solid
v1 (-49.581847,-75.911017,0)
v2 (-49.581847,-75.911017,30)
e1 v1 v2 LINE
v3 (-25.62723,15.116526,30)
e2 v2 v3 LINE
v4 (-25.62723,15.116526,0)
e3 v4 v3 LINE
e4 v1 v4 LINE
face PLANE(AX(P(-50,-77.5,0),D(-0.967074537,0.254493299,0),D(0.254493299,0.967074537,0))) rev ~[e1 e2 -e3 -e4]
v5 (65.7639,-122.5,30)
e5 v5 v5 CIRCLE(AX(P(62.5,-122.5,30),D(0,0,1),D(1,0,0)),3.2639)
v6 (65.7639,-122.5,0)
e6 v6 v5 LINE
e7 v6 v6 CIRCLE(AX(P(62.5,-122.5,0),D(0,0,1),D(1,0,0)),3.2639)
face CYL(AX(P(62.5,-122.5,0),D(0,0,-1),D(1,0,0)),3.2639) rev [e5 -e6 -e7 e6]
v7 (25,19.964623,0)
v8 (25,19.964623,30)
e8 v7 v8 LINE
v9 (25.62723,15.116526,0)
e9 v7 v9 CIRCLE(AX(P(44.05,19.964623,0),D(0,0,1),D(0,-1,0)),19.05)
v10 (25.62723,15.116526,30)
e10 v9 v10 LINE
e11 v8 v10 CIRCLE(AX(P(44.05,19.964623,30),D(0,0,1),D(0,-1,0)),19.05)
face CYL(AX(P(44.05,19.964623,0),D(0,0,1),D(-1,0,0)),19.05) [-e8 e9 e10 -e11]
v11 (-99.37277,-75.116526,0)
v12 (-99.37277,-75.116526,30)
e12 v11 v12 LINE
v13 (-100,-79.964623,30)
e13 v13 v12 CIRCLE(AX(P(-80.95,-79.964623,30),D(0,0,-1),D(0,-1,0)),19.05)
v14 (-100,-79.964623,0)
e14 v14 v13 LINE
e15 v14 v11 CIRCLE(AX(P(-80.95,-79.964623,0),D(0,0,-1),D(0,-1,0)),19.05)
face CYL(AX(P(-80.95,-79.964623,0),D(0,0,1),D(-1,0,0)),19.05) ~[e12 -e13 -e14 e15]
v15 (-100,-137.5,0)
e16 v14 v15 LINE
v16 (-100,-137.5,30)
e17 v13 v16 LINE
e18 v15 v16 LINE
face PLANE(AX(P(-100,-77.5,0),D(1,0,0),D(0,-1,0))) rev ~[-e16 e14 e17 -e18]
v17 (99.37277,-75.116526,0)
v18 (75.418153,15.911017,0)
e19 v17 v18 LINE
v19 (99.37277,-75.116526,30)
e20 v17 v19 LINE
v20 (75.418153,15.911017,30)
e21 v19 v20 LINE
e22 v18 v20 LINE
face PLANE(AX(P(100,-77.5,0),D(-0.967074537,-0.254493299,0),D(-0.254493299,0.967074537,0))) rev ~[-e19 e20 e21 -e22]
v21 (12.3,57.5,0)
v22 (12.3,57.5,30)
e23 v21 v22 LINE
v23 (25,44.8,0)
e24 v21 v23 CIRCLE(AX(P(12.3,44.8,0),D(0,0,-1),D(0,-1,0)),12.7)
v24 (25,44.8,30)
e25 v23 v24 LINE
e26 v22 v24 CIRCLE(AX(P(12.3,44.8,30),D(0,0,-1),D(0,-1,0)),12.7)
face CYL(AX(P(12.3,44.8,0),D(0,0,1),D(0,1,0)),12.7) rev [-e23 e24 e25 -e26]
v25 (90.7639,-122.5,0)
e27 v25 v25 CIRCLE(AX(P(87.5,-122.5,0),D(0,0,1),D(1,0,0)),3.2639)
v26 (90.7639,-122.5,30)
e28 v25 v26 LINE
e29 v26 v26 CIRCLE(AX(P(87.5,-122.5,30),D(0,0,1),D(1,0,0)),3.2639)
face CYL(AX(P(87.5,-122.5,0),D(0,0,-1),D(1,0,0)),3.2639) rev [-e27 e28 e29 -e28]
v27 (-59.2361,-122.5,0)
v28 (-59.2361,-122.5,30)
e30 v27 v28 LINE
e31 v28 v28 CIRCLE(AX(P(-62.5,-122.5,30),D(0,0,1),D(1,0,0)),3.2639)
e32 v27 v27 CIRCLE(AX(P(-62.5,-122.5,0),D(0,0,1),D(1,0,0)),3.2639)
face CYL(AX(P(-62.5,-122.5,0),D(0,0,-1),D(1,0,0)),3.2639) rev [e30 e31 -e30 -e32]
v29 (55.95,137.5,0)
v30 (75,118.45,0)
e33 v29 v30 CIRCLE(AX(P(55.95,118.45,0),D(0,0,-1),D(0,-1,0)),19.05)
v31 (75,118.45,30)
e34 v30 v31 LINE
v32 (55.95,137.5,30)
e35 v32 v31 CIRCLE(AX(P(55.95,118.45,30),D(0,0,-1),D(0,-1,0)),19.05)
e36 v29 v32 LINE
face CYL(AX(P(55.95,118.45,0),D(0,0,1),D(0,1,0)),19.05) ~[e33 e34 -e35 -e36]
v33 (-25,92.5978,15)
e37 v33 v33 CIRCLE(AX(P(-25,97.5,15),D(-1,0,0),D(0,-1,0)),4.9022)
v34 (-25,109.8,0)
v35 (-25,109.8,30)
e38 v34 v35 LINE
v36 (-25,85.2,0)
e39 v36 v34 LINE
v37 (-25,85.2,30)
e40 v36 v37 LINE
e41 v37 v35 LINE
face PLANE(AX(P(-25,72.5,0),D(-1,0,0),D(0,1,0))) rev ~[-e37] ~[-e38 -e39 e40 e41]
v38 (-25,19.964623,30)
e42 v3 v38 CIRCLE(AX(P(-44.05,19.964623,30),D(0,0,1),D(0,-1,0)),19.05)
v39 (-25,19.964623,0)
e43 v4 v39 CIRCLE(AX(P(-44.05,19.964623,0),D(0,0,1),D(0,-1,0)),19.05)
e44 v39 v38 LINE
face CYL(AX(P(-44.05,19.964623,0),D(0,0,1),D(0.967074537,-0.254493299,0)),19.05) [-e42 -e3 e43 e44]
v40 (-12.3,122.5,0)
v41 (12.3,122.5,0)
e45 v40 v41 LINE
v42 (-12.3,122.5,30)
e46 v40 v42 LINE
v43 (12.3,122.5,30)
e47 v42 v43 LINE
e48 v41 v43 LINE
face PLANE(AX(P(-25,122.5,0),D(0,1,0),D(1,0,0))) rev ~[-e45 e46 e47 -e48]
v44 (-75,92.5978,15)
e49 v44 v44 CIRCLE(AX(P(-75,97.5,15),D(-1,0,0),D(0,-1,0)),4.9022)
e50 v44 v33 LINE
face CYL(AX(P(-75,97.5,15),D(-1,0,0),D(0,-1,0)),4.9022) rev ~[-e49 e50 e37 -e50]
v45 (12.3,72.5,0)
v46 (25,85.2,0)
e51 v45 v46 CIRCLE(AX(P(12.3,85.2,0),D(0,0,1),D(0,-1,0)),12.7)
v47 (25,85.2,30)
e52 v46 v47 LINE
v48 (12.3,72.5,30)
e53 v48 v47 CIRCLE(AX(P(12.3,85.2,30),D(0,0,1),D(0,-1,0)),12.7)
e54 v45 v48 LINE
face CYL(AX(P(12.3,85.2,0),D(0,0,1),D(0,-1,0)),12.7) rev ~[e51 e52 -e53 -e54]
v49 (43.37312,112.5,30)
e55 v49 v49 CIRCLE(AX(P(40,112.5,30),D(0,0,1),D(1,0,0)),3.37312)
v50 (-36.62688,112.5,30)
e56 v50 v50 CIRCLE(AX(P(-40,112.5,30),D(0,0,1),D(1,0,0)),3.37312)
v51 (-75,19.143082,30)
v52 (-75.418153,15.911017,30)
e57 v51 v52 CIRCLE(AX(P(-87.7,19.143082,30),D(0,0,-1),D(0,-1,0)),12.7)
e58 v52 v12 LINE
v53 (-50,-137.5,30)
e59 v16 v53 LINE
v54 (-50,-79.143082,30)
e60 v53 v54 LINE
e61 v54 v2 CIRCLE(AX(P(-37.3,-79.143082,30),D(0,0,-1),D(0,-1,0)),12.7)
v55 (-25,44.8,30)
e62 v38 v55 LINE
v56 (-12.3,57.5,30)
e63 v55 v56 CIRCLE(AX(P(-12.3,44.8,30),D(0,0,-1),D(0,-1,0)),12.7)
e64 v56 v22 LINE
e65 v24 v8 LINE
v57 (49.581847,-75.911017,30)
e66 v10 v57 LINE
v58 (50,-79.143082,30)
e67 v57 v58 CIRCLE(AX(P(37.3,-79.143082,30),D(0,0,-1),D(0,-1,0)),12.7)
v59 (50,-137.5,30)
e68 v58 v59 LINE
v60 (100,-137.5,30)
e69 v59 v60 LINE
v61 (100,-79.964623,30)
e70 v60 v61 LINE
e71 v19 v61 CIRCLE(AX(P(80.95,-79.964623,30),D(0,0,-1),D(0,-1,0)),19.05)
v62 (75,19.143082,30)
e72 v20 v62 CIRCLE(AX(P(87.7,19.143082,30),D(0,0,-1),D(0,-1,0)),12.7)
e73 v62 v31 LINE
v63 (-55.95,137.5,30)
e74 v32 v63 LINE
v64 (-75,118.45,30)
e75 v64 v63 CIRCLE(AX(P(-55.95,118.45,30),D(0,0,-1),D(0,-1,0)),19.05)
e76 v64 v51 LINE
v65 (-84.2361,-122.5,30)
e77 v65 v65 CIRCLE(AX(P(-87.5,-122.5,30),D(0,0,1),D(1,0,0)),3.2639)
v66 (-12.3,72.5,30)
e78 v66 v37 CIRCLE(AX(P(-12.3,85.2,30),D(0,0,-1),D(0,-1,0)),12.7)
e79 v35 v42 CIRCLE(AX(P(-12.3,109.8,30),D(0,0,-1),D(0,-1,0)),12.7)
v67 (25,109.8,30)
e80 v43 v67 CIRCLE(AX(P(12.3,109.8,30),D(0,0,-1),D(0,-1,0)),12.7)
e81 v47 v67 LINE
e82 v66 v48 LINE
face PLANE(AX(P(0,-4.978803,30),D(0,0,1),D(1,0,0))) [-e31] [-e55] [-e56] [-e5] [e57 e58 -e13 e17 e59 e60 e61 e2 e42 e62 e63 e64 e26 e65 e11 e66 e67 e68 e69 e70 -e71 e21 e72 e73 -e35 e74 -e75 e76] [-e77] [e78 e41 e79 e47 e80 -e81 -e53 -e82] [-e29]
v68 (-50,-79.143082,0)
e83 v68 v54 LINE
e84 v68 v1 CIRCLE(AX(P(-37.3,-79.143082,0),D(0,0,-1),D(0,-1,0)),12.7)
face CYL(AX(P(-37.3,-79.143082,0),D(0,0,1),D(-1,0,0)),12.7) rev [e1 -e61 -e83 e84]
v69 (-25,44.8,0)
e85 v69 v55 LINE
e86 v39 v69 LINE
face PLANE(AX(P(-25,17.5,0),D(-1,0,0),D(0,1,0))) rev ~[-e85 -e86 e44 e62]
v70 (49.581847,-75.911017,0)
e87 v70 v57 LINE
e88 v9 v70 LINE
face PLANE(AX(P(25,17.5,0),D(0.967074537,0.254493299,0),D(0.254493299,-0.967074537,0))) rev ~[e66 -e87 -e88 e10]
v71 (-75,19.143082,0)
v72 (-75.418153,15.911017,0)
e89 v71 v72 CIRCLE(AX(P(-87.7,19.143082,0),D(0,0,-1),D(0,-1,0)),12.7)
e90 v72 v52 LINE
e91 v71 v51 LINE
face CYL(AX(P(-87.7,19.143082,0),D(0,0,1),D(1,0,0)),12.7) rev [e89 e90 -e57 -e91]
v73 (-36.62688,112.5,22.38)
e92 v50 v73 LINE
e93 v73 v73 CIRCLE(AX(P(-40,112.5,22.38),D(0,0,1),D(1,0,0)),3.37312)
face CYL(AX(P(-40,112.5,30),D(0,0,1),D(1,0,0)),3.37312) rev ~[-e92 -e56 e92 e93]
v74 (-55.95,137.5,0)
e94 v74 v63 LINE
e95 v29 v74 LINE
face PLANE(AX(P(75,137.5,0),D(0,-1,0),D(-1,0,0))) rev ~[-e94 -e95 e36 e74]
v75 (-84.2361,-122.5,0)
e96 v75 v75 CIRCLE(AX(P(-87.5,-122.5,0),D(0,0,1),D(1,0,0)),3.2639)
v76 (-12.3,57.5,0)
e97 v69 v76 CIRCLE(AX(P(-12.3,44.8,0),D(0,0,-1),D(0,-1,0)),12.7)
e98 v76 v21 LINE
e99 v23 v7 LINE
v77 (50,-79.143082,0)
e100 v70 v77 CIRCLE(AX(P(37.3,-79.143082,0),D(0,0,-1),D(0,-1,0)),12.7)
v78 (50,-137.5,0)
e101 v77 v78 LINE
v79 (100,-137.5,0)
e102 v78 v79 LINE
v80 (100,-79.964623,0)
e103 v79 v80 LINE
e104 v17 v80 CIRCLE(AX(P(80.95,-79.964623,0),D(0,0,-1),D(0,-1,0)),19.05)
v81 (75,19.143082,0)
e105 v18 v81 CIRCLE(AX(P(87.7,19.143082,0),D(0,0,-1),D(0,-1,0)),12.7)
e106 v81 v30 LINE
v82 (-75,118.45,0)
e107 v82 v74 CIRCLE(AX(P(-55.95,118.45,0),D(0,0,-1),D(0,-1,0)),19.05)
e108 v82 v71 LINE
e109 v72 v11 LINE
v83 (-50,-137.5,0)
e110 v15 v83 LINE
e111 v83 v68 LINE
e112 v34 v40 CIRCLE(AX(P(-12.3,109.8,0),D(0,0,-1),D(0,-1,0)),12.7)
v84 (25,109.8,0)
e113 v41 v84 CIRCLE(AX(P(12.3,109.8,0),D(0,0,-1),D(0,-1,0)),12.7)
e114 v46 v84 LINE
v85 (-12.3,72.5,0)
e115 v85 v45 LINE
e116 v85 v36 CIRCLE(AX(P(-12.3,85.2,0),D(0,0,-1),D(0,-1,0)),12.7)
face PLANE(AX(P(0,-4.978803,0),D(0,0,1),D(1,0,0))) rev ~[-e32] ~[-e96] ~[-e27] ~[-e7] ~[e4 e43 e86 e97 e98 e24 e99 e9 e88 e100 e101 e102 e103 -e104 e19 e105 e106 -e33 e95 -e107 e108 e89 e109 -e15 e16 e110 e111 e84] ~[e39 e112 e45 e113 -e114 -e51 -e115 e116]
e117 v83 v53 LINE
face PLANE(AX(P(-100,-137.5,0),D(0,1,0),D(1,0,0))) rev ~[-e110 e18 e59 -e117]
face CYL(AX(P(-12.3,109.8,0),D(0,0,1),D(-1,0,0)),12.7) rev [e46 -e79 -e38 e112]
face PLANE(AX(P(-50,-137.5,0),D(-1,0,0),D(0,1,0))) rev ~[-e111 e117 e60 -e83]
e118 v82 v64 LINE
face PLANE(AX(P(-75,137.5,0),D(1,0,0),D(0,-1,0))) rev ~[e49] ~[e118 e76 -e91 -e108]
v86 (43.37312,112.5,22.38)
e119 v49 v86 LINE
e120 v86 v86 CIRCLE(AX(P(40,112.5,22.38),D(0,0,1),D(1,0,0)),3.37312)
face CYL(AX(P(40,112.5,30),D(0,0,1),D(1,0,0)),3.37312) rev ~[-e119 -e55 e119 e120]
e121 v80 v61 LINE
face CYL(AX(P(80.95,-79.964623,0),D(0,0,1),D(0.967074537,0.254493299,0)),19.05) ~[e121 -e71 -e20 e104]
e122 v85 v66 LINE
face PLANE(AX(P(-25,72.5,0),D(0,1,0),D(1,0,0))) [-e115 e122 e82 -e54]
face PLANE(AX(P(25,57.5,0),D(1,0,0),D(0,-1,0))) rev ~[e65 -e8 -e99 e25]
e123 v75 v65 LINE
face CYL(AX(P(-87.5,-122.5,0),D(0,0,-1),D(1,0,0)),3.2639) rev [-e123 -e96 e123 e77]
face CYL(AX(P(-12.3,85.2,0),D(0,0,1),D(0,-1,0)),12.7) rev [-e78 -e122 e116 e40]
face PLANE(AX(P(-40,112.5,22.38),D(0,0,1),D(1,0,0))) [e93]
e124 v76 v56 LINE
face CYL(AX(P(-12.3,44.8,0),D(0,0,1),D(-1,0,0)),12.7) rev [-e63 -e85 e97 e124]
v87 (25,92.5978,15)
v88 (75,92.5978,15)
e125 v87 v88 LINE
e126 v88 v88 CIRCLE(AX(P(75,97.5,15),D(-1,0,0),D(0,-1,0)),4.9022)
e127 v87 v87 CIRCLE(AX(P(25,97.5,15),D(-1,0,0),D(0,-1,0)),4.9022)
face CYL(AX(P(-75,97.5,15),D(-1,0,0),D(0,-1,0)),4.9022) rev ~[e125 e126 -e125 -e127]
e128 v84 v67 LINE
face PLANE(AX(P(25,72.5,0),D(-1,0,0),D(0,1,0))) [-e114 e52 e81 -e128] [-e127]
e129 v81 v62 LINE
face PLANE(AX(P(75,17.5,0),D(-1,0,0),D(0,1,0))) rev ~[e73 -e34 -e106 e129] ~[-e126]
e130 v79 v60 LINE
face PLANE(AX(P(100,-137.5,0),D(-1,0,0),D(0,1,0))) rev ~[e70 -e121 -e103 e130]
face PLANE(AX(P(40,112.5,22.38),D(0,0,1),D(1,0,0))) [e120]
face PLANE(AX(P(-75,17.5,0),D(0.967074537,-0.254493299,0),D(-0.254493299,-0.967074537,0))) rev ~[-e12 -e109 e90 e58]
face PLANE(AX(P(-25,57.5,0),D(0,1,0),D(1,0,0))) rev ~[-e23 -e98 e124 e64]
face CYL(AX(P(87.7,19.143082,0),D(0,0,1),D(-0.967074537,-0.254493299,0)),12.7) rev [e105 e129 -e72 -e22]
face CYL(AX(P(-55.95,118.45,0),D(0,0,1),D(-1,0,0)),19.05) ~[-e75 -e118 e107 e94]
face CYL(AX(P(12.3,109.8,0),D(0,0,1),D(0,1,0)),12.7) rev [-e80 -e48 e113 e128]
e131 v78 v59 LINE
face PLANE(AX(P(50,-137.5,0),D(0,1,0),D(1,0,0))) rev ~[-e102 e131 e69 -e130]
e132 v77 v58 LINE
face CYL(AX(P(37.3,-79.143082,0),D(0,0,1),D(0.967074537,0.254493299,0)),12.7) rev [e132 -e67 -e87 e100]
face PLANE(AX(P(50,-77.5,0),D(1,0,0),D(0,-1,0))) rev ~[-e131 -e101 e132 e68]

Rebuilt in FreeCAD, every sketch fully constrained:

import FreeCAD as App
import Part
import Sketcher
from FreeCAD import Vector
Q = App.Units.Quantity


def edges_at(feature, points):
    """Names of the edges that pass closest to the given points."""
    edges = feature.Shape.Edges
    near = lambda p: min(range(len(edges)), key=lambda i: edges[i].distToShape(Part.Vertex(*p))[0])
    return sorted({f"Edge{near(p) + 1}" for p in points})


def add_polygon(sketch, points):
    """Adds a closed chain of lines whose ends are joined by coincident constraints."""
    first, n = sketch.GeometryCount, len(points)
    for a, b in zip(points, points[1:] + points[:1]):
        sketch.addGeometry(Part.LineSegment(App.Vector(*a, 0), App.Vector(*b, 0)), False)
    for i in range(n):
        sketch.addConstraint(Sketcher.Constraint("Coincident", first + i, 2, first + (i + 1) % n, 1))

doc = App.newDocument("Part")
body = doc.addObject("PartDesign::Body", "Body")

# Sketch on XY plane
sketch1 = body.newObject("Sketcher::SketchObject", "Sketch")
sketch1.AttachmentSupport = (doc.getObject("XY_Plane"), [""])
sketch1.MapMode = "FlatFace"
add_polygon(sketch1, [(-100, -137.5), (-50, -137.5), (-50, -77.5), (-25, 17.5), (-25, 57.5), (25, 57.5), (25, 17.5), (50, -77.5), (50, -137.5), (100, -137.5), (100, -77.5), (75, 17.5), (75, 137.5), (-75, 137.5), (-75, 17.5), (-100, -77.5)])  # lines 0-15
sketch1.addGeometry(Part.Circle(Vector(-87.5, -122.5, 0), Vector(0, 0, 1), 3.3), False)  # 16
sketch1.addGeometry(Part.Circle(Vector(-62.5, -122.5, 0), Vector(0, 0, 1), 3.3), False)  # 17
sketch1.addGeometry(Part.Circle(Vector(62.5, -122.5, 0), Vector(0, 0, 1), 3.3), False)  # 18
sketch1.addGeometry(Part.Circle(Vector(87.5, -122.5, 0), Vector(0, 0, 1), 3.3), False)  # 19
add_polygon(sketch1, [(25, 72.5), (-25, 72.5), (-25, 122.5), (25, 122.5)])  # lines 20-23
sketch1.addConstraint(Sketcher.Constraint("Horizontal", 0))
sketch1.addConstraint(Sketcher.Constraint("Vertical", 1))
sketch1.addConstraint(Sketcher.Constraint("Vertical", 3))
sketch1.addConstraint(Sketcher.Constraint("Horizontal", 4))
sketch1.addConstraint(Sketcher.Constraint("Vertical", 5))
sketch1.addConstraint(Sketcher.Constraint("Vertical", 7))
sketch1.addConstraint(Sketcher.Constraint("Horizontal", 8))
sketch1.addConstraint(Sketcher.Constraint("Vertical", 9))
sketch1.addConstraint(Sketcher.Constraint("Vertical", 11))
sketch1.addConstraint(Sketcher.Constraint("Horizontal", 12))
sketch1.addConstraint(Sketcher.Constraint("Vertical", 13))
sketch1.addConstraint(Sketcher.Constraint("Vertical", 15))
sketch1.addConstraint(Sketcher.Constraint("Horizontal", 20))
sketch1.addConstraint(Sketcher.Constraint("Vertical", 21))
sketch1.addConstraint(Sketcher.Constraint("Horizontal", 22))
sketch1.addConstraint(Sketcher.Constraint("Vertical", 23))
sketch1.addConstraint(Sketcher.Constraint("Equal", 16, 17))
sketch1.addConstraint(Sketcher.Constraint("Equal", 17, 18))
sketch1.addConstraint(Sketcher.Constraint("Equal", 18, 19))
sketch1.addConstraint(Sketcher.Constraint("Symmetric", 17, 3, 18, 3, -2))
sketch1.addConstraint(Sketcher.Constraint("Symmetric", 16, 3, 19, 3, -2))
sketch1.addConstraint(Sketcher.Constraint("Symmetric", 2, 2, 5, 2, -2))
sketch1.addConstraint(Sketcher.Constraint("Symmetric", 1, 2, 6, 2, -2))
sketch1.addConstraint(Sketcher.Constraint("Symmetric", 10, 2, 13, 2, -2))
sketch1.addConstraint(Sketcher.Constraint("Symmetric", 9, 2, 14, 2, -2))
sketch1.addConstraint(Sketcher.Constraint("Parallel", 6, 10))
sketch1.addConstraint(Sketcher.Constraint("Horizontal", 16, 3, 17, 3))
sketch1.addConstraint(Sketcher.Constraint("Horizontal", 0, 2, 7, 2))
sketch1.addConstraint(Sketcher.Constraint("Horizontal", 6, 2, 9, 2))
sketch1.addConstraint(Sketcher.Constraint("Horizontal", 5, 2, 10, 2))
sketch1.addConstraint(Sketcher.Constraint("Vertical", 3, 2, 20, 2))
sketch1.addConstraint(Sketcher.Constraint("Vertical", 5, 2, 22, 2))
sketch1.addConstraint(Sketcher.Constraint("Equal", 0, 4))
sketch1.addConstraint(Sketcher.Constraint("Equal", 22, 21))
sketch1.addConstraint(Sketcher.Constraint("DistanceX", 0, 1, 0, 2, Q("50 mm")))
sketch1.addConstraint(Sketcher.Constraint("DistanceY", 1, 1, 1, 2, Q("60 mm")))
sketch1.addConstraint(Sketcher.Constraint("DistanceY", 3, 1, 3, 2, Q("40 mm")))
sketch1.addConstraint(Sketcher.Constraint("DistanceY", 11, 1, 11, 2, Q("120 mm")))
sketch1.addConstraint(Sketcher.Constraint("DistanceX", 0, 2, -1, 1, Q("50 mm")))
sketch1.addConstraint(Sketcher.Constraint("DistanceX", 16, 3, 17, 3, Q("25 mm")))
sketch1.addConstraint(Sketcher.Constraint("DistanceX", 17, 3, 18, 3, Q("125 mm")))
sketch1.addConstraint(Sketcher.Constraint("DistanceY", 0, 2, 17, 3, Q("15 mm")))
sketch1.addConstraint(Sketcher.Constraint("DistanceY", 1, 2, 2, 2, Q("95 mm")))
sketch1.addConstraint(Sketcher.Constraint("DistanceY", 3, 2, 20, 2, Q("15 mm")))
sketch1.addConstraint(Sketcher.Constraint("Diameter", 16, Q("6.5278 mm")))
sketch1.addConstraint(Sketcher.Constraint("DistanceY", 16, 3, -1, 1, Q("122.5 mm")))
pad1 = body.newObject("PartDesign::Pad", "Pad")
pad1.Profile = sketch1
pad1.Length = 30
doc.recompute()

fillet = body.newObject("PartDesign::Fillet", "Fillet")
fillet.Base = (pad1, edges_at(pad1, [
    (-25, 122.5, 15),
    (25, 122.5, 15),
    (25, 72.5, 15),
    (-25, 72.5, 15),
    (-25, 57.5, 15),
    (25, 57.5, 15),
    (50, -77.5, 15),
    (-50, -77.5, 15),
    (-75, 17.5, 15),
    (75, 17.5, 15),
]))
fillet.Radius = 12.7
doc.recompute()

fillet2 = body.newObject("PartDesign::Fillet", "Fillet001")
fillet2.Base = (fillet, edges_at(fillet, [
    (-100, -77.5, 15),
    (-75, 137.5, 15),
    (75, 137.5, 15),
    (100, -77.5, 15),
    (25, 17.5, 15),
    (-25, 17.5, 15),
]))
fillet2.Radius = 19.05

# Sketch on XY plane
sketch2 = body.newObject("Sketcher::SketchObject", "Sketch001")
sketch2.AttachmentSupport = (doc.getObject("XY_Plane"), [""])
sketch2.MapMode = "FlatFace"
sketch2.AttachmentOffset = App.Placement(Vector(0, 0, 30), App.Rotation())
sketch2.addGeometry(Part.Circle(Vector(-40, 112.5, 0), Vector(0, 0, 1), 3.4), False)
sketch2.addGeometry(Part.Circle(Vector(40, 112.5, 0), Vector(0, 0, 1), 3.4), False)
sketch2.addConstraint(Sketcher.Constraint("Equal", 0, 1))
sketch2.addConstraint(Sketcher.Constraint("Symmetric", 0, 3, 1, 3, -2))
sketch2.addConstraint(Sketcher.Constraint("DistanceX", 0, 3, -1, 1, Q("40 mm")))
sketch2.addConstraint(Sketcher.Constraint("DistanceY", -1, 1, 0, 3, Q("112.5 mm")))
sketch2.addConstraint(Sketcher.Constraint("Diameter", 0, Q("6.74624 mm")))
pocket1 = body.newObject("PartDesign::Pocket", "Pocket")
pocket1.Profile = sketch2
pocket1.Length = 7.62

# Sketch on YZ plane
sketch3 = body.newObject("Sketcher::SketchObject", "Sketch002")
sketch3.AttachmentSupport = (doc.getObject("YZ_Plane"), [""])
sketch3.MapMode = "FlatFace"
sketch3.AttachmentOffset = App.Placement(Vector(0, 0, -75), App.Rotation())
sketch3.addGeometry(Part.Circle(Vector(97.5, 15, 0), Vector(0, 0, 1), 4.9), False)
sketch3.addConstraint(Sketcher.Constraint("DistanceY", -1, 1, 0, 3, Q("15 mm")))
sketch3.addConstraint(Sketcher.Constraint("Diameter", 0, Q("9.8044 mm")))
sketch3.addConstraint(Sketcher.Constraint("DistanceX", -1, 1, 0, 3, Q("97.5 mm")))
pocket2 = body.newObject("PartDesign::Pocket", "Pocket001")
pocket2.Profile = sketch3
pocket2.Type = "ThroughAll"
pocket2.Reversed = True

doc.recompute()
